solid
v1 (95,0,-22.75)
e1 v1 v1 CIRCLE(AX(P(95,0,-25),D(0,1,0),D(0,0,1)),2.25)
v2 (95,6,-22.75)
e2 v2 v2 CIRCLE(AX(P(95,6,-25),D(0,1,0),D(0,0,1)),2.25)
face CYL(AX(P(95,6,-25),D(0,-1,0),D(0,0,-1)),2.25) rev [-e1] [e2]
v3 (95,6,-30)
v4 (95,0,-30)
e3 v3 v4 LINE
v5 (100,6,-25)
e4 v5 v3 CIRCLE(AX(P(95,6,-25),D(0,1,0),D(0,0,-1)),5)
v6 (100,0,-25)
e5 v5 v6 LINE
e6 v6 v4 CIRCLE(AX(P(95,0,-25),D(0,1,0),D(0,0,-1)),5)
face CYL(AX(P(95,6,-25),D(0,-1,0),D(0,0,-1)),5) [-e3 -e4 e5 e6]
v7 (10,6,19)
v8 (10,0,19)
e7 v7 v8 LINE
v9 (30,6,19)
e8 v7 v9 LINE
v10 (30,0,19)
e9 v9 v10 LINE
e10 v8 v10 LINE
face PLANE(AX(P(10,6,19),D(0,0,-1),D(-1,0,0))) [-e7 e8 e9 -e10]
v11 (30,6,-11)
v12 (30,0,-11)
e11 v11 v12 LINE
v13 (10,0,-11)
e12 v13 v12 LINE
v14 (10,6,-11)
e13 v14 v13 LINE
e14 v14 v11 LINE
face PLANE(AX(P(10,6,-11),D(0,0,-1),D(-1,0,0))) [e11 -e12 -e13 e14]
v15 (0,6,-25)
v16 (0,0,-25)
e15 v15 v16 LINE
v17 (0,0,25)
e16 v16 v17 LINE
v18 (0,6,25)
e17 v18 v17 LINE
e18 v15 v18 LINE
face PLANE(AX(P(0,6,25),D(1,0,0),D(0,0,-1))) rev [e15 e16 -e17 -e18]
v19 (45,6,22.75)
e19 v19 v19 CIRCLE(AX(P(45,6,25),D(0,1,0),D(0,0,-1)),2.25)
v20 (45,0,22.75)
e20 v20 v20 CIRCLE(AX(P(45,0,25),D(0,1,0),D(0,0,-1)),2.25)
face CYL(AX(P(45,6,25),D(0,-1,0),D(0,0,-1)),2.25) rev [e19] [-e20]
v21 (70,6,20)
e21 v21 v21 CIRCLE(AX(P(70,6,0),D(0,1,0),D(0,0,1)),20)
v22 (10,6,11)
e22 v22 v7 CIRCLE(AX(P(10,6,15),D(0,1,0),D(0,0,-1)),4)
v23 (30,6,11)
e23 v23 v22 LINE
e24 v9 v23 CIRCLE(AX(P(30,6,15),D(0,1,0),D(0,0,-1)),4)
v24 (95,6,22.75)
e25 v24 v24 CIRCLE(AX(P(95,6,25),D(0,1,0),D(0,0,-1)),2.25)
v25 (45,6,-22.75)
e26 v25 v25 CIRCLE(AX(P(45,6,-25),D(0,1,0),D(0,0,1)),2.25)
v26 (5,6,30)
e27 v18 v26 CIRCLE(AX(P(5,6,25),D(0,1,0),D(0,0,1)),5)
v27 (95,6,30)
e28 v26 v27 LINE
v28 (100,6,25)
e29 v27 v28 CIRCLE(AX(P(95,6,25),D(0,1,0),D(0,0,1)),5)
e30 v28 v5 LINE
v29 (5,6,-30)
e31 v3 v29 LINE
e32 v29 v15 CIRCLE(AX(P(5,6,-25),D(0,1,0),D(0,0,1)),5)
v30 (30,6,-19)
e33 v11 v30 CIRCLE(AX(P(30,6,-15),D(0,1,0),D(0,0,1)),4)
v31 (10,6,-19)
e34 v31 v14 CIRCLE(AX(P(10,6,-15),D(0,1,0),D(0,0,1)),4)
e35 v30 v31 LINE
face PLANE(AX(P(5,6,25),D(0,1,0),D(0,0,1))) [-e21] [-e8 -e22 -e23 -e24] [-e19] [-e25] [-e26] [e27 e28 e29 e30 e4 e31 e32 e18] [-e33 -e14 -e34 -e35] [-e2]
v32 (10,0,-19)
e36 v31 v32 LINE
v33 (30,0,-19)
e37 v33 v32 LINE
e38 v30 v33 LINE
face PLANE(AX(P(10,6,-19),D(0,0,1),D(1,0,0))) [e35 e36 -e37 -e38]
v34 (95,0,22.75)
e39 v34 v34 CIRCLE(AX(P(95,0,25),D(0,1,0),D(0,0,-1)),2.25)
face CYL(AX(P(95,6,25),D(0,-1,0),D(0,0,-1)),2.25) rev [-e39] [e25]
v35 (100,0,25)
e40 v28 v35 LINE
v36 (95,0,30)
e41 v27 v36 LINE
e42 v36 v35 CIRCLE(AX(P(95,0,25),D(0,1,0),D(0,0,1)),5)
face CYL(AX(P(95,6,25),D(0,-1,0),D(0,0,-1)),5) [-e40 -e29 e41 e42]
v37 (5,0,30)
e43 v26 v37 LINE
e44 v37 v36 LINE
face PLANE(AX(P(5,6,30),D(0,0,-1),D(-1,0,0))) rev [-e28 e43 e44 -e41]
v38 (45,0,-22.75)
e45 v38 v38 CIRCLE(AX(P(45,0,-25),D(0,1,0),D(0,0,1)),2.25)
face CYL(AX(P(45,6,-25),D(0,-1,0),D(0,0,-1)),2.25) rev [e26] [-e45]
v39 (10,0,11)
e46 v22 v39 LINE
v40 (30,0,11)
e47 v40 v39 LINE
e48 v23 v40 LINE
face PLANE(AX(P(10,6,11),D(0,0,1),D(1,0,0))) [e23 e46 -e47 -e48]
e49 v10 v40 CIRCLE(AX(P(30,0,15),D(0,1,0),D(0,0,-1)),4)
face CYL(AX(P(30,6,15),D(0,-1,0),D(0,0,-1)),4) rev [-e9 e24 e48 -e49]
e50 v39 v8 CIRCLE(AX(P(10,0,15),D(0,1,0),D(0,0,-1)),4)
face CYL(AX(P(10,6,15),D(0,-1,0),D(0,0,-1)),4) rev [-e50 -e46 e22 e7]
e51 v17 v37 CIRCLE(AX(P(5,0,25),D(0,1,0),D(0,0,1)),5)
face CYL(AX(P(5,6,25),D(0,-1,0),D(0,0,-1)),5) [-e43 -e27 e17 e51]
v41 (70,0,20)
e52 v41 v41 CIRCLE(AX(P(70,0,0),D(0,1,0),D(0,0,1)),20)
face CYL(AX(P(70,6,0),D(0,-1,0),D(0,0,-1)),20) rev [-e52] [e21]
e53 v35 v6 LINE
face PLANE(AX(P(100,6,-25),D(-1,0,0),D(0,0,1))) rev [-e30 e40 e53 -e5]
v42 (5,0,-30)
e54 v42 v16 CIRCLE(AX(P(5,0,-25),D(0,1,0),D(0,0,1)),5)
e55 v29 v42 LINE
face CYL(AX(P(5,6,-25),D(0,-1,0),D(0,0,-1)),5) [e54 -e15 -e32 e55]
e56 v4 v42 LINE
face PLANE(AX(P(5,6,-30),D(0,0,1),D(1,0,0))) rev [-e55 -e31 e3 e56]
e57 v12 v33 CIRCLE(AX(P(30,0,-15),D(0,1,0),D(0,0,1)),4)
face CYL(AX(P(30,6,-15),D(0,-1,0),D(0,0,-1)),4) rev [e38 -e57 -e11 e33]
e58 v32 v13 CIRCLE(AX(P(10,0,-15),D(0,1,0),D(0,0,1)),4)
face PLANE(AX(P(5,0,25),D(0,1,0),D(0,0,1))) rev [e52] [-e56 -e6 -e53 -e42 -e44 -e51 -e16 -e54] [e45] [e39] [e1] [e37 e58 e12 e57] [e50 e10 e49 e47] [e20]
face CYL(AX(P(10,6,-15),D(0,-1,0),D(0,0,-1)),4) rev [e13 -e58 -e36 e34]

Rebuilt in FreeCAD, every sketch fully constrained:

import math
import FreeCAD as App
import Part
import Sketcher

V = App.Vector

doc = App.newDocument("Part")
body = doc.addObject("PartDesign::Body", "Body")

sketch1 = doc.addObject("Sketcher::SketchObject", "Sketch")
body.addObject(sketch1)
sketch1.AttachmentSupport = (doc.XZ_Plane, [""])
sketch1.MapMode = "FlatFace"
sketch1.addGeometry([
    Part.LineSegment(V(0, -25, 0), V(0, 25, 0)),
    Part.ArcOfCircle(Part.Circle(V(5, 25, 0), V(0, 0, 1), 5), math.radians(90), math.radians(180)),
    Part.LineSegment(V(5, 30, 0), V(95, 30, 0)),
    Part.ArcOfCircle(Part.Circle(V(95, 25, 0), V(0, 0, 1), 5), math.radians(0), math.radians(90)),
    Part.LineSegment(V(100, 25, 0), V(100, -25, 0)),
    Part.ArcOfCircle(Part.Circle(V(95, -25, 0), V(0, 0, 1), 5), math.radians(-90), math.radians(0)),
    Part.LineSegment(V(95, -30, 0), V(5, -30, 0)),
    Part.ArcOfCircle(Part.Circle(V(5, -25, 0), V(0, 0, 1), 5), math.radians(180), math.radians(270)),
    Part.Circle(V(95, 25, 0), V(0, 0, 1), 2.25),
    Part.Circle(V(45, 25, 0), V(0, 0, 1), 2.25),
    Part.ArcOfCircle(Part.Circle(V(10, 15, 0), V(0, 0, 1), 4), math.radians(90), math.radians(270)),
    Part.LineSegment(V(10, 11, 0), V(30, 11, 0)),
    Part.ArcOfCircle(Part.Circle(V(30, 15, 0), V(0, 0, 1), 4), math.radians(-90), math.radians(90)),
    Part.LineSegment(V(30, 19, 0), V(10, 19, 0)),
    Part.Circle(V(70, 0, 0), V(0, 0, 1), 20),
    Part.Circle(V(95, -25, 0), V(0, 0, 1), 2.25),
    Part.Circle(V(45, -25, 0), V(0, 0, 1), 2.25),
    Part.LineSegment(V(10, -19, 0), V(30, -19, 0)),
    Part.ArcOfCircle(Part.Circle(V(30, -15, 0), V(0, 0, 1), 4), math.radians(-90), math.radians(90)),
    Part.LineSegment(V(30, -11, 0), V(10, -11, 0)),
    Part.ArcOfCircle(Part.Circle(V(10, -15, 0), V(0, 0, 1), 4), math.radians(90), math.radians(270)),
], False)
sketch1.addConstraint([
    Sketcher.Constraint("Tangent", 0, 2, 1, 2),
    Sketcher.Constraint("Tangent", 1, 1, 2, 1),
    Sketcher.Constraint("Tangent", 2, 2, 3, 2),
    Sketcher.Constraint("Tangent", 3, 1, 4, 1),
    Sketcher.Constraint("Tangent", 4, 2, 5, 2),
    Sketcher.Constraint("Tangent", 5, 1, 6, 1),
    Sketcher.Constraint("Tangent", 6, 2, 7, 2),
    Sketcher.Constraint("Tangent", 7, 1, 0, 1),
    Sketcher.Constraint("Tangent", 10, 2, 11, 1),
    Sketcher.Constraint("Tangent", 11, 2, 12, 1),
    Sketcher.Constraint("Tangent", 12, 2, 13, 1),
    Sketcher.Constraint("Tangent", 13, 2, 10, 1),
    Sketcher.Constraint("Tangent", 17, 2, 18, 1),
    Sketcher.Constraint("Tangent", 18, 2, 19, 1),
    Sketcher.Constraint("Tangent", 19, 2, 20, 1),
    Sketcher.Constraint("Tangent", 20, 2, 17, 1),
    Sketcher.Constraint("Vertical", 0),
    Sketcher.Constraint("Horizontal", 2),
    Sketcher.Constraint("Vertical", 4),
    Sketcher.Constraint("Horizontal", 6),
    Sketcher.Constraint("Horizontal", 11),
    Sketcher.Constraint("Horizontal", 13),
    Sketcher.Constraint("Horizontal", 17),
    Sketcher.Constraint("Horizontal", 19),
    Sketcher.Constraint("Coincident", 8, 3, 3, 3),
    Sketcher.Constraint("Coincident", 15, 3, 5, 3),
    Sketcher.Constraint("Equal", 1, 3),
    Sketcher.Constraint("Equal", 3, 5),
    Sketcher.Constraint("Equal", 5, 7),
    Sketcher.Constraint("Equal", 8, 9),
    Sketcher.Constraint("Equal", 9, 15),
    Sketcher.Constraint("Equal", 15, 16),
    Sketcher.Constraint("Equal", 12, 18),
    Sketcher.Constraint("Symmetric", 0, 2, 7, 1, -1, 1),
    Sketcher.Constraint("Symmetric", 9, 3, 16, 3, -1),
    Sketcher.Constraint("Symmetric", 12, 3, 18, 3, -1),
    Sketcher.Constraint("PointOnObject", 14, 3, -1),
    Sketcher.Constraint("Horizontal", 8, 3, 9, 3),
    Sketcher.Constraint("Vertical", 10, 3, 20, 3),
    Sketcher.Constraint("Diameter", 14, 40.0),
    Sketcher.Constraint("Radius", 1, 5.0),
    Sketcher.Constraint("Radius", 10, 4.0),
    Sketcher.Constraint("Diameter", 8, 4.5),
    Sketcher.Constraint("DistanceX", 2, 1, 2, 2, 90.0),
    Sketcher.Constraint("DistanceX", 11, 1, 11, 2, 20.0),
    Sketcher.Constraint("DistanceY", 0, 1, 0, 2, 50.0),
    Sketcher.Constraint("DistanceX", -1, 1, 9, 3, 45.0),
    Sketcher.Constraint("DistanceX", -1, 1, 10, 3, 10.0),
    Sketcher.Constraint("DistanceY", -1, 1, 10, 3, 15.0),
    Sketcher.Constraint("DistanceX", -1, 1, 14, 3, 70.0),
])
pad1 = doc.addObject("PartDesign::Pad", "Pad")
body.addObject(pad1)
pad1.Profile = sketch1
pad1.Length = 6
pad1.Reversed = True

doc.recompute()
